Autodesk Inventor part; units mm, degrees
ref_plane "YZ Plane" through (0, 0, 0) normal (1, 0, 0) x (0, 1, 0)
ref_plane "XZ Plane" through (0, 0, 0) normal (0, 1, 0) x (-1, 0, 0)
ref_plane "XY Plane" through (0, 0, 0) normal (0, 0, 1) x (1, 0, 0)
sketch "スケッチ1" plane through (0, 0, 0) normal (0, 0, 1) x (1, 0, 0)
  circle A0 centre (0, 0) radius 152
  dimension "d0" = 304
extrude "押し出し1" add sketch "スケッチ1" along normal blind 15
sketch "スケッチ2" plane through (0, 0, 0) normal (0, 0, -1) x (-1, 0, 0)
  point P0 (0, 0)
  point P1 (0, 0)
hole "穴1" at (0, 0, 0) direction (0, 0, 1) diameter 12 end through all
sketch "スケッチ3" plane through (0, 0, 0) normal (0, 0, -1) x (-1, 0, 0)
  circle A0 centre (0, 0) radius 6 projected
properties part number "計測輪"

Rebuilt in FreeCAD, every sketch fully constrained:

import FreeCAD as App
import Part
import Sketcher

V = App.Vector
Q = App.Units.Quantity

doc = App.newDocument("Part")
body = doc.addObject("PartDesign::Body", "Body")

sketch1 = doc.addObject("Sketcher::SketchObject", "Sketch")
body.addObject(sketch1)
sketch1.AttachmentSupport = (doc.XY_Plane, [""])
sketch1.MapMode = "FlatFace"
sketch1.addGeometry(Part.Circle(V(0, 0, 0), V(0, 0, 1), 152), False)
sketch1.addConstraint([
    Sketcher.Constraint("Coincident", 0, 3, -1, 1),
    Sketcher.Constraint("Diameter", 0, Q("304 mm")),
])
pad1 = doc.addObject("PartDesign::Pad", "Pad")
body.addObject(pad1)
pad1.Profile = sketch1
pad1.Length = 15

sketch2 = doc.addObject("Sketcher::SketchObject", "Sketch001")
body.addObject(sketch2)
sketch2.AttachmentSupport = (doc.XY_Plane, [""])
sketch2.MapMode = "FlatFace"
sketch2.addGeometry(Part.Circle(V(0, 0, 0), V(0, 0, 1), 6), False)
sketch2.addConstraint([
    Sketcher.Constraint("Coincident", 0, 3, -1, 1),
    Sketcher.Constraint("Diameter", 0, Q("12 mm")),
])
doc.recompute()
hole = doc.addObject("PartDesign::Hole", "Hole")
body.addObject(hole)
hole.Profile = sketch2
hole.ThreadType = "None"
hole.Diameter = 12
hole.DepthType = "ThroughAll"
hole.Reversed = True

doc.recompute()
